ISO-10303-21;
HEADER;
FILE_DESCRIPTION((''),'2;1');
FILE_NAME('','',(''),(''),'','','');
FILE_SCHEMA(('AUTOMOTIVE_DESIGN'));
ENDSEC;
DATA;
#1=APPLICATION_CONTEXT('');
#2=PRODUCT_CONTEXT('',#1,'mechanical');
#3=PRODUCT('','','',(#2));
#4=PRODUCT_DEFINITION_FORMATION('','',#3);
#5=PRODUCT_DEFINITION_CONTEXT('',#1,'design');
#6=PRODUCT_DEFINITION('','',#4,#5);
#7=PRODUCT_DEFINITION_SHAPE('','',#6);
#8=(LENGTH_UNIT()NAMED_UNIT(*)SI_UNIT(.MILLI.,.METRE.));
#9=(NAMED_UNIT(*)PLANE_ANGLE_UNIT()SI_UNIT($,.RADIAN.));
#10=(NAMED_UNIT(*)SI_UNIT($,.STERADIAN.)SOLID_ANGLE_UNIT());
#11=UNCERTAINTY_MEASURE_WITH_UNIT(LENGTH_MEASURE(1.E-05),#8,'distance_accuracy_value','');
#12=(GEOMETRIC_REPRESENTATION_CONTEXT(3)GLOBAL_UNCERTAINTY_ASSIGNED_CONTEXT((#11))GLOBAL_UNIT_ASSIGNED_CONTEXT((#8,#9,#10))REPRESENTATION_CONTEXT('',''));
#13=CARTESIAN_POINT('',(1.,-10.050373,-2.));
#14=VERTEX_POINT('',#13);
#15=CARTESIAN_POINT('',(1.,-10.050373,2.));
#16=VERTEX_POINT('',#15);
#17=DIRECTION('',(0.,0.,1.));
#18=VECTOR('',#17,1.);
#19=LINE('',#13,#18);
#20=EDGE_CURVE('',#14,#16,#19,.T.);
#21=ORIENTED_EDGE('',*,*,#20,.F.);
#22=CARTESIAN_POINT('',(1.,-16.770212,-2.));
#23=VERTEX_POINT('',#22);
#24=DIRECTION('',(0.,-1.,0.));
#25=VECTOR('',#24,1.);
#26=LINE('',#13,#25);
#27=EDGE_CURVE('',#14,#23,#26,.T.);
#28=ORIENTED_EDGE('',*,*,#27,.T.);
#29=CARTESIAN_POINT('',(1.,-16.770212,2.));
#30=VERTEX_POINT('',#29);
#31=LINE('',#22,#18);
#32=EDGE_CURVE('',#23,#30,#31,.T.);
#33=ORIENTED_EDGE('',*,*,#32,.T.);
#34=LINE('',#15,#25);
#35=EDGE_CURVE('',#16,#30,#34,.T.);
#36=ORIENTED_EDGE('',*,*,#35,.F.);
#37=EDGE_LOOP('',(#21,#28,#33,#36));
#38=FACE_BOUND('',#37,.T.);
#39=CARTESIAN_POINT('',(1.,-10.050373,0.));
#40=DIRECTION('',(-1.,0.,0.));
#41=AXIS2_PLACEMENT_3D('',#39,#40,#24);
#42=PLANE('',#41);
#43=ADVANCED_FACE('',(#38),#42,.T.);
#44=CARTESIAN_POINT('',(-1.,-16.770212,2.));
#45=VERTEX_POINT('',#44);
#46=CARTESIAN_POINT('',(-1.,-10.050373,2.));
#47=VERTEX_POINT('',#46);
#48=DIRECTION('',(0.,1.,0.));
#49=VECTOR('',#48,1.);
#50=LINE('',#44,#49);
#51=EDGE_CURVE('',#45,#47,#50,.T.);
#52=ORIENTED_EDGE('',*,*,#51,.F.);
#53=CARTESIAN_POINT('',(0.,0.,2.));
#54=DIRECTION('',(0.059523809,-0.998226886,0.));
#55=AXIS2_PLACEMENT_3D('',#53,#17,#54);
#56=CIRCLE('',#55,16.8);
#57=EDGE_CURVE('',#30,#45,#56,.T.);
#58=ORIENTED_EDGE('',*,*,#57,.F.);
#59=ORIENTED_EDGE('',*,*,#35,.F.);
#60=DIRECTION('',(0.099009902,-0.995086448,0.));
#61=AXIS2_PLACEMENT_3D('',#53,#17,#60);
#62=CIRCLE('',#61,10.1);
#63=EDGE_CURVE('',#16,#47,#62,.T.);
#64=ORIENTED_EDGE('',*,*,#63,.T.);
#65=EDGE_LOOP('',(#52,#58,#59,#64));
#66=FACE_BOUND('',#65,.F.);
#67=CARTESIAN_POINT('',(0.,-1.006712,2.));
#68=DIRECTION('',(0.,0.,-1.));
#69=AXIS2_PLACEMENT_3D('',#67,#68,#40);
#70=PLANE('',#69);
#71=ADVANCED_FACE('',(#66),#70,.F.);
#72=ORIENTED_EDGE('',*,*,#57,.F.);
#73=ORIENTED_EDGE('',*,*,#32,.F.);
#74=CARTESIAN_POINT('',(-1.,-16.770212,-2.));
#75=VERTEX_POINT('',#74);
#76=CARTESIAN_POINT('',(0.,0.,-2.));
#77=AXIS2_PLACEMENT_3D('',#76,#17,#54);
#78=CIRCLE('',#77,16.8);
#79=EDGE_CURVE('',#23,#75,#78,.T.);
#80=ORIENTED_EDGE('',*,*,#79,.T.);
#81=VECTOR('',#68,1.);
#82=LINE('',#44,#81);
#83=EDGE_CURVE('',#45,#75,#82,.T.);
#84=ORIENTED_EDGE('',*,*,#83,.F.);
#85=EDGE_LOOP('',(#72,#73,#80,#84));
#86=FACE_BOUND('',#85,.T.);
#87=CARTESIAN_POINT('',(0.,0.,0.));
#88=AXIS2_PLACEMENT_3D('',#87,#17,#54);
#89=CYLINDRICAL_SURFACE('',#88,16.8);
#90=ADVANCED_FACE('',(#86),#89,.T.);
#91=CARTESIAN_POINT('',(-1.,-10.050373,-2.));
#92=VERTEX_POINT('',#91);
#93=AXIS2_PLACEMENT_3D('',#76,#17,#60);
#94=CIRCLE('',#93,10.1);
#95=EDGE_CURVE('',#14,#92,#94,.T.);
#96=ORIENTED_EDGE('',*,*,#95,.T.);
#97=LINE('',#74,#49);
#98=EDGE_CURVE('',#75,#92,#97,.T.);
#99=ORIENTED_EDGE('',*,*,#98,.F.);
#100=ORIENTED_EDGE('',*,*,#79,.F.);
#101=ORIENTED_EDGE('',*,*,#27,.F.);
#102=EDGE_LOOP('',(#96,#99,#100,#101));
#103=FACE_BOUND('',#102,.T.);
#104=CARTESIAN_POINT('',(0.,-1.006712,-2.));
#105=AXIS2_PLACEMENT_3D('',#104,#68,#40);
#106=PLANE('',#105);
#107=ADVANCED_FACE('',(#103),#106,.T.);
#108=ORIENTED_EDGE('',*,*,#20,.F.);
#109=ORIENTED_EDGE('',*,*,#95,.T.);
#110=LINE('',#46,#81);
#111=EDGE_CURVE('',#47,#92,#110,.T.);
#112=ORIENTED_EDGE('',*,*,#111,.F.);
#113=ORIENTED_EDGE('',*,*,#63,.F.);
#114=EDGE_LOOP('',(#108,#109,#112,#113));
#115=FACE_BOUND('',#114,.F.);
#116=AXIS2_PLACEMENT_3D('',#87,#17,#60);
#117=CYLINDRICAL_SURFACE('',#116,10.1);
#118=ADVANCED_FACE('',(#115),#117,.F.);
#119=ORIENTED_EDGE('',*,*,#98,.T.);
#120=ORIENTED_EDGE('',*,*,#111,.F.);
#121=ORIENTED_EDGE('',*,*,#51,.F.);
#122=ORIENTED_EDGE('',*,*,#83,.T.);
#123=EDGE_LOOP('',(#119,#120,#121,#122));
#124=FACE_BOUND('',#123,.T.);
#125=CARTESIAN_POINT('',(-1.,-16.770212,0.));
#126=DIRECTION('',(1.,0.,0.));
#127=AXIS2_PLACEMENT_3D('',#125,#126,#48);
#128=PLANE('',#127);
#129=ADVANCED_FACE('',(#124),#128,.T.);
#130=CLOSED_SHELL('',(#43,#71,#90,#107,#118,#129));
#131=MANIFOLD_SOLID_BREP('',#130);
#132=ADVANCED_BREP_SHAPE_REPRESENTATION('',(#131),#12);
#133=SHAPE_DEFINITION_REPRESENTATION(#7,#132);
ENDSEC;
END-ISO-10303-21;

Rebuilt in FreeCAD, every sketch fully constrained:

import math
import FreeCAD as App
import Part
import Sketcher
Q = App.Units.Quantity

doc = App.newDocument("Part")
body = doc.addObject("PartDesign::Body", "Body")

# Sketch on XY plane
sketch1 = doc.addObject("Sketcher::SketchObject", "Sketch")
body.addObject(sketch1)
sketch1.AttachmentSupport = (doc.XY_Plane, [""])
sketch1.MapMode = "FlatFace"
sketch1.addGeometry(Part.ArcOfCircle(Part.Circle(App.Vector(0, 0, 0), App.Vector(0, 0, 1), 10.1), math.radians(-84), math.radians(264)), False)
sketch1.addGeometry(Part.LineSegment(App.Vector(1, -10.1, 0), App.Vector(1, -16.8, 0)), False)
sketch1.addGeometry(Part.ArcOfCircle(Part.Circle(App.Vector(0, 0, 0), App.Vector(0, 0, 1), 16.8), math.radians(-87), math.radians(267)), False)
sketch1.addGeometry(Part.LineSegment(App.Vector(-1, -16.8, 0), App.Vector(-1, -10.1, 0)), False)
sketch1.addConstraint(Sketcher.Constraint("Coincident", 0, 1, 1, 1))
sketch1.addConstraint(Sketcher.Constraint("Coincident", 1, 2, 2, 1))
sketch1.addConstraint(Sketcher.Constraint("Coincident", 2, 2, 3, 1))
sketch1.addConstraint(Sketcher.Constraint("Coincident", 3, 2, 0, 2))
sketch1.addConstraint(Sketcher.Constraint("Vertical", 1))
sketch1.addConstraint(Sketcher.Constraint("Vertical", 3))
sketch1.addConstraint(Sketcher.Constraint("Coincident", 0, 3, -1, 1))
sketch1.addConstraint(Sketcher.Constraint("Coincident", 2, 3, -1, 1))
sketch1.addConstraint(Sketcher.Constraint("Horizontal", 1, 2, 2, 2))
sketch1.addConstraint(Sketcher.Constraint("Radius", 0, Q("10.1 mm")))
sketch1.addConstraint(Sketcher.Constraint("Radius", 2, Q("16.8 mm")))
sketch1.addConstraint(Sketcher.Constraint("DistanceX", -1, 1, 0, 1, Q("1 mm")))
pad1 = doc.addObject("PartDesign::Pad", "Pad")
body.addObject(pad1)
pad1.Profile = sketch1
pad1.Length = 4
pad1.Midplane = True

doc.recompute()
